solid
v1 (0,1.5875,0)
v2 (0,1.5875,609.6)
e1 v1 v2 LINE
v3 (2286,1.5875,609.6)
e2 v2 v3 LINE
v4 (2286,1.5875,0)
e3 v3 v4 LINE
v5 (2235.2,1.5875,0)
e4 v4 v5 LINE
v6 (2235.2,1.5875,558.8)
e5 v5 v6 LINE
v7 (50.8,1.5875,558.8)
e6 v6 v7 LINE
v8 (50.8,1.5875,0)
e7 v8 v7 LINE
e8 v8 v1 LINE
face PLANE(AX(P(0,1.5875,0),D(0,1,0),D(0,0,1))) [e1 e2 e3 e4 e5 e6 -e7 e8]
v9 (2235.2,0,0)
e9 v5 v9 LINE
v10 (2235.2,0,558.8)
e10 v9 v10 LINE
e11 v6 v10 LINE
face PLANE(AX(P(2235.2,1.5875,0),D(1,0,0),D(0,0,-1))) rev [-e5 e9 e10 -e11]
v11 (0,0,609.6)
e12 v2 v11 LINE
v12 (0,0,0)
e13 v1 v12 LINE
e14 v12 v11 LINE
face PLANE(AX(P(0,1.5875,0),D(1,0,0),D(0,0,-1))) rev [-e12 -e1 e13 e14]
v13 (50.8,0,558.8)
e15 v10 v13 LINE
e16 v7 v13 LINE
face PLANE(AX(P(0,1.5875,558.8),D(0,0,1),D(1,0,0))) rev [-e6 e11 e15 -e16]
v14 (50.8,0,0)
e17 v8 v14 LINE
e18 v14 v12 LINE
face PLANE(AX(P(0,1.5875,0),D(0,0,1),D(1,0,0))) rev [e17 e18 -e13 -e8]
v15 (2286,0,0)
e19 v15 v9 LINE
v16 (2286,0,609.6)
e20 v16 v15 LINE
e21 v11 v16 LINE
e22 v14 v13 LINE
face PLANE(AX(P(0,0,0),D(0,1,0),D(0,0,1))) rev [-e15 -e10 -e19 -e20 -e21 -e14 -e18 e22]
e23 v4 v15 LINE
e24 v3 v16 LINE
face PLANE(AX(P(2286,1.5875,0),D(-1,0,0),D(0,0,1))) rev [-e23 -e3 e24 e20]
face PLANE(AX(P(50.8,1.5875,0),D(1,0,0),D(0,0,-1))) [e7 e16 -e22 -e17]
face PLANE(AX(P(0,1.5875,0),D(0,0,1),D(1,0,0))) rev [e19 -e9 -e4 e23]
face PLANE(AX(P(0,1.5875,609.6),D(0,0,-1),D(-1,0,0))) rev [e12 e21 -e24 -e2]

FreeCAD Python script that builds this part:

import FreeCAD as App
import Part
import Sketcher
Q = App.Units.Quantity


def add_polygon(sketch, points):
    """Adds a closed chain of lines whose ends are joined by coincident constraints."""
    first, n = sketch.GeometryCount, len(points)
    for a, b in zip(points, points[1:] + points[:1]):
        sketch.addGeometry(Part.LineSegment(App.Vector(*a, 0), App.Vector(*b, 0)), False)
    for i in range(n):
        sketch.addConstraint(Sketcher.Constraint("Coincident", first + i, 2, first + (i + 1) % n, 1))

doc = App.newDocument("Part")
body = doc.addObject("PartDesign::Body", "Body")

sketch1 = body.newObject("Sketcher::SketchObject", "Sketch")
sketch1.AttachmentSupport = (doc.getObject("XZ_Plane"), [""])
sketch1.MapMode = "FlatFace"
add_polygon(sketch1, [(0, 0), (0, 610), (2286, 610), (2286, 0), (2235, 0), (2235, 559), (51, 559), (51, 0)])
sketch1.addConstraint([
    Sketcher.Constraint("Vertical", 0),
    Sketcher.Constraint("Horizontal", 1),
    Sketcher.Constraint("Vertical", 2),
    Sketcher.Constraint("Horizontal", 3),
    Sketcher.Constraint("Vertical", 4),
    Sketcher.Constraint("Horizontal", 5),
    Sketcher.Constraint("Vertical", 6),
    Sketcher.Constraint("Horizontal", 7),
    Sketcher.Constraint("Coincident", 7, 2, -1, 1),
    Sketcher.Constraint("PointOnObject", 2, 2, -1),
    Sketcher.Constraint("Equal", 3, 7),
    Sketcher.Constraint("DistanceX", 1, 1, 1, 2, Q("90 in")),
    Sketcher.Constraint("DistanceX", 3, 2, 3, 1, Q("2 in")),
    Sketcher.Constraint("DistanceY", 0, 1, 0, 2, Q("24 in")),
    Sketcher.Constraint("DistanceY", 4, 1, 4, 2, Q("22 in")),
])
pad1 = body.newObject("PartDesign::Pad", "Pad")
pad1.Profile = sketch1
pad1.Length = Q("0.0625 in")
pad1.Reversed = True

doc.recompute()
